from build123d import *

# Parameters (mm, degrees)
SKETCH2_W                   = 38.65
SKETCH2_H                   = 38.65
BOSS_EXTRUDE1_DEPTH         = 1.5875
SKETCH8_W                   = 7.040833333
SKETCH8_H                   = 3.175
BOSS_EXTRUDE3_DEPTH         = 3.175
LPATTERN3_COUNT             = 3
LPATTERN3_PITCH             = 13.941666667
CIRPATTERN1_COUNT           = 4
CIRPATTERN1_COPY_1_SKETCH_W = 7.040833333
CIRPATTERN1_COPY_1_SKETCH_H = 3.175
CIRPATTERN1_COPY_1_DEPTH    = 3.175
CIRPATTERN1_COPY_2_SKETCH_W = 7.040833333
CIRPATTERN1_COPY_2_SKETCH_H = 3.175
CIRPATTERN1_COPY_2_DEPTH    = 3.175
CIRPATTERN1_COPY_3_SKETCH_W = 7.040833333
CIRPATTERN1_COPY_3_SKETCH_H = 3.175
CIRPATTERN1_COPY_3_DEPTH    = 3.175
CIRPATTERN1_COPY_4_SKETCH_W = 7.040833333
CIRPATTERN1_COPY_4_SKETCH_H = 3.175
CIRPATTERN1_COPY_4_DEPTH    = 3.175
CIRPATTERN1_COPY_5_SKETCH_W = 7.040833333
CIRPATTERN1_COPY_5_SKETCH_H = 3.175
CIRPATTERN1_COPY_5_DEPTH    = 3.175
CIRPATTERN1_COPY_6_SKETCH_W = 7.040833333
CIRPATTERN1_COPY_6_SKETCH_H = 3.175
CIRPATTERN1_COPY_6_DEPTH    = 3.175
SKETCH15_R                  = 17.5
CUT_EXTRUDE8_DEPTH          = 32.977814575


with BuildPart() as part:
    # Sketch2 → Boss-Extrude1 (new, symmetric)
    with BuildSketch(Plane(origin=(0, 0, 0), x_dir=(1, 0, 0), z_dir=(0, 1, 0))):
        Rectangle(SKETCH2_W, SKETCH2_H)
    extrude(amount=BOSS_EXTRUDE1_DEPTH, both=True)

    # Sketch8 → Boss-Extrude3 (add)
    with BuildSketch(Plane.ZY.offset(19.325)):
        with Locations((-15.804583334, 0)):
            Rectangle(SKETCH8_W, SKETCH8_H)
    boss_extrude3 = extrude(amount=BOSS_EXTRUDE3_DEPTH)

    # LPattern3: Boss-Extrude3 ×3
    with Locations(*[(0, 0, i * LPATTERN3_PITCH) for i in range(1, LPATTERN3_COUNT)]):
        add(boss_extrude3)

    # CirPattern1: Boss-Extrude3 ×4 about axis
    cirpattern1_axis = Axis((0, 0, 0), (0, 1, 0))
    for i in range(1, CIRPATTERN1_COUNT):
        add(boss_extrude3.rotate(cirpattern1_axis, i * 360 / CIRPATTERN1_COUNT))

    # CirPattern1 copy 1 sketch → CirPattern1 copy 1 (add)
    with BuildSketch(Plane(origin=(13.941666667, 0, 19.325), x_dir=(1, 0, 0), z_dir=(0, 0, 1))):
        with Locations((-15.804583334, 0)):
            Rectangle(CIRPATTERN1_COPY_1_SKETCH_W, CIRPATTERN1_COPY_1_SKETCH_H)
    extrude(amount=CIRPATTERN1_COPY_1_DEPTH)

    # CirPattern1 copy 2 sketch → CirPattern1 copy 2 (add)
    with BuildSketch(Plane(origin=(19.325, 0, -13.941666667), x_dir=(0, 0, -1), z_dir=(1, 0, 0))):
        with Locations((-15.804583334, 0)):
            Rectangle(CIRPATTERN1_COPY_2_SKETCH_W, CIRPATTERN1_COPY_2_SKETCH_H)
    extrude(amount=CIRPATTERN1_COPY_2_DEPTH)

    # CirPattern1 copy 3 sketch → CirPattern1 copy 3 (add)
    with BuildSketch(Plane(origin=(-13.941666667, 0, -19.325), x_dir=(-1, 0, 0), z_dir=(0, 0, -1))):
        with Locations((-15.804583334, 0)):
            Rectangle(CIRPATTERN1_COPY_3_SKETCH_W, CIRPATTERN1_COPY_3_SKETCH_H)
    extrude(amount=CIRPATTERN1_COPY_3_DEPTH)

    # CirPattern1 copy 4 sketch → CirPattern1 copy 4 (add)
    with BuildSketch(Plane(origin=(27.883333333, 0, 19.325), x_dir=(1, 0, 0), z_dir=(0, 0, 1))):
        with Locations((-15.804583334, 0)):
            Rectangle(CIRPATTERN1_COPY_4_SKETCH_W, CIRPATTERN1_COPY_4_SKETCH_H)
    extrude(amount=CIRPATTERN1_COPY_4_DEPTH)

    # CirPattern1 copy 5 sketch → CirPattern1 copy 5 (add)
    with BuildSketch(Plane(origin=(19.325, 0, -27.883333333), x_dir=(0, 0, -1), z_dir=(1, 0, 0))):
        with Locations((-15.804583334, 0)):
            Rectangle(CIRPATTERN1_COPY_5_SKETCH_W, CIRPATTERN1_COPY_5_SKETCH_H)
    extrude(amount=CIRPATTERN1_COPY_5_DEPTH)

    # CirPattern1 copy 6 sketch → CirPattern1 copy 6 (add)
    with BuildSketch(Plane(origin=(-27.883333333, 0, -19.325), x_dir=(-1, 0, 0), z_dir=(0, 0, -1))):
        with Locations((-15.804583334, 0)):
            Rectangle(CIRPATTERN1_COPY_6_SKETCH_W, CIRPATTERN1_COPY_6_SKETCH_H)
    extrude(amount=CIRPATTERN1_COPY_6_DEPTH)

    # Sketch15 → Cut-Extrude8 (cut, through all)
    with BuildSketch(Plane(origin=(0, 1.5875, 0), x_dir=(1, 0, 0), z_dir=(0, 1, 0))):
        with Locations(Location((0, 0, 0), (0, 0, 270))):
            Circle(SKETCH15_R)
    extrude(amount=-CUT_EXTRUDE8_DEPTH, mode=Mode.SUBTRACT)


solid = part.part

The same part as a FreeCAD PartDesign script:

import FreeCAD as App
import Part
import Sketcher
from FreeCAD import Vector
Q = App.Units.Quantity

doc = App.newDocument("Part")
body = doc.addObject("PartDesign::Body", "Body")

# Sketch on XZ plane
sketch1 = body.newObject("Sketcher::SketchObject", "Sketch")
sketch1.AttachmentSupport = (doc.getObject("XZ_Plane"), [""])
sketch1.MapMode = "FlatFace"
sketch1.addGeometry([
    Part.LineSegment(Vector(-19, -19, 0), Vector(-19, 19, 0)),
    Part.LineSegment(Vector(-19, 19, 0), Vector(19, 19, 0)),
    Part.LineSegment(Vector(19, 19, 0), Vector(19, -19, 0)),
    Part.LineSegment(Vector(19, -19, 0), Vector(-19, -19, 0)),
], False)
sketch1.addConstraint([
    Sketcher.Constraint("Coincident", 0, 2, 1, 1),
    Sketcher.Constraint("Coincident", 1, 2, 2, 1),
    Sketcher.Constraint("Coincident", 2, 2, 3, 1),
    Sketcher.Constraint("Coincident", 3, 2, 0, 1),
    Sketcher.Constraint("Vertical", 0),
    Sketcher.Constraint("Horizontal", 1),
    Sketcher.Constraint("Vertical", 2),
    Sketcher.Constraint("Horizontal", 3),
    Sketcher.Constraint("Symmetric", 0, 2, 2, 2, -1, 1),
    Sketcher.Constraint("Equal", 3, 0),
    Sketcher.Constraint("DistanceX", 1, 1, 1, 2, 38.65),
])
pad1 = body.newObject("PartDesign::Pad", "Pad")
pad1.Profile = sketch1
pad1.Length = Q("0.125 in")
pad1.Midplane = True

# Sketch on YZ plane
sketch2 = body.newObject("Sketcher::SketchObject", "Sketch001")
sketch2.AttachmentSupport = (doc.getObject("YZ_Plane"), [""])
sketch2.MapMode = "FlatFace"
sketch2.AttachmentOffset = App.Placement(Vector(0, 0, -19.325), App.Rotation())
sketch2.addGeometry([
    Part.LineSegment(Vector(1.6, -19.3, 0), Vector(-1.6, -19.3, 0)),
    Part.LineSegment(Vector(-1.6, -19.3, 0), Vector(-1.6, -12.3, 0)),
    Part.LineSegment(Vector(-1.6, -12.3, 0), Vector(1.6, -12.3, 0)),
    Part.LineSegment(Vector(1.6, -12.3, 0), Vector(1.6, -19.3, 0)),
], False)
sketch2.addConstraint([
    Sketcher.Constraint("Coincident", 0, 2, 1, 1),
    Sketcher.Constraint("Coincident", 1, 2, 2, 1),
    Sketcher.Constraint("Coincident", 2, 2, 3, 1),
    Sketcher.Constraint("Coincident", 3, 2, 0, 1),
    Sketcher.Constraint("Horizontal", 0),
    Sketcher.Constraint("Vertical", 1),
    Sketcher.Constraint("Horizontal", 2),
    Sketcher.Constraint("Vertical", 3),
    Sketcher.Constraint("DistanceX", 0, 2, 0, 1, Q("0.125 in")),
    Sketcher.Constraint("DistanceX", 0, 2, -1, 1, Q("0.0625 in")),
    Sketcher.Constraint("DistanceY", 0, 2, -1, 1, 19.325),
    Sketcher.Constraint("DistanceY", 1, 1, 1, 2, 7.040833),
])
pad2 = body.newObject("PartDesign::Pad", "Pad001")
pad2.Profile = sketch2
pad2.Length = Q("0.125 in")
pad2.Reversed = True
doc.recompute()

linearpattern = body.newObject("PartDesign::LinearPattern", "LinearPattern")
linearpattern.Originals = [pad2]
linearpattern.Direction = (doc.getObject("Z_Axis"), [""])
linearpattern.Mode = "offset"
linearpattern.Offset = 13.941667
linearpattern.Occurrences = 3
body.Tip = linearpattern
doc.recompute()

polarpattern = body.newObject("PartDesign::PolarPattern", "PolarPattern")
polarpattern.Originals = [pad2]
polarpattern.Axis = (doc.getObject("Y_Axis"), [""])
polarpattern.Angle = 360
polarpattern.Occurrences = 4
body.Tip = polarpattern

# Sketch on XY plane
sketch3 = body.newObject("Sketcher::SketchObject", "Sketch002")
sketch3.AttachmentSupport = (doc.getObject("XY_Plane"), [""])
sketch3.MapMode = "FlatFace"
sketch3.AttachmentOffset = App.Placement(Vector(0, 0, 19.325), App.Rotation())
sketch3.addGeometry([
    Part.LineSegment(Vector(-5.4, 1.6, 0), Vector(-5.4, -1.6, 0)),
    Part.LineSegment(Vector(-5.4, -1.6, 0), Vector(1.7, -1.6, 0)),
    Part.LineSegment(Vector(1.7, -1.6, 0), Vector(1.7, 1.6, 0)),
    Part.LineSegment(Vector(1.7, 1.6, 0), Vector(-5.4, 1.6, 0)),
], False)
sketch3.addConstraint([
    Sketcher.Constraint("Coincident", 0, 2, 1, 1),
    Sketcher.Constraint("Coincident", 1, 2, 2, 1),
    Sketcher.Constraint("Coincident", 2, 2, 3, 1),
    Sketcher.Constraint("Coincident", 3, 2, 0, 1),
    Sketcher.Constraint("Vertical", 0),
    Sketcher.Constraint("Horizontal", 1),
    Sketcher.Constraint("Vertical", 2),
    Sketcher.Constraint("Horizontal", 3),
    Sketcher.Constraint("DistanceY", 0, 2, 0, 1, Q("0.125 in")),
    Sketcher.Constraint("DistanceY", 0, 2, -1, 1, Q("0.0625 in")),
    Sketcher.Constraint("DistanceX", -1, 1, 1, 2, 1.6575),
    Sketcher.Constraint("DistanceX", 1, 1, 1, 2, 7.040833),
])
pad3 = body.newObject("PartDesign::Pad", "Pad002")
pad3.Profile = sketch3
pad3.Length = Q("0.125 in")

# Sketch on YZ plane
sketch4 = body.newObject("Sketcher::SketchObject", "Sketch003")
sketch4.AttachmentSupport = (doc.getObject("YZ_Plane"), [""])
sketch4.MapMode = "FlatFace"
sketch4.AttachmentOffset = App.Placement(Vector(0, 0, 19.325), App.Rotation())
sketch4.addGeometry([
    Part.LineSegment(Vector(1.6, 5.4, 0), Vector(-1.6, 5.4, 0)),
    Part.LineSegment(Vector(-1.6, 5.4, 0), Vector(-1.6, -1.7, 0)),
    Part.LineSegment(Vector(-1.6, -1.7, 0), Vector(1.6, -1.7, 0)),
    Part.LineSegment(Vector(1.6, -1.7, 0), Vector(1.6, 5.4, 0)),
], False)
sketch4.addConstraint([
    Sketcher.Constraint("Coincident", 0, 2, 1, 1),
    Sketcher.Constraint("Coincident", 1, 2, 2, 1),
    Sketcher.Constraint("Coincident", 2, 2, 3, 1),
    Sketcher.Constraint("Coincident", 3, 2, 0, 1),
    Sketcher.Constraint("Horizontal", 0),
    Sketcher.Constraint("Vertical", 1),
    Sketcher.Constraint("Horizontal", 2),
    Sketcher.Constraint("Vertical", 3),
    Sketcher.Constraint("DistanceX", 0, 2, 0, 1, Q("0.125 in")),
    Sketcher.Constraint("DistanceX", 0, 2, -1, 1, Q("0.0625 in")),
    Sketcher.Constraint("DistanceY", 1, 2, -1, 1, 1.6575),
    Sketcher.Constraint("DistanceY", 1, 2, 1, 1, 7.040833),
])
pad4 = body.newObject("PartDesign::Pad", "Pad003")
pad4.Profile = sketch4
pad4.Length = Q("0.125 in")

# Sketch on XY plane
sketch5 = body.newObject("Sketcher::SketchObject", "Sketch004")
sketch5.AttachmentSupport = (doc.getObject("XY_Plane"), [""])
sketch5.MapMode = "FlatFace"
sketch5.AttachmentOffset = App.Placement(Vector(0, 0, -19.325), App.Rotation())
sketch5.addGeometry([
    Part.LineSegment(Vector(5.4, 1.6, 0), Vector(5.4, -1.6, 0)),
    Part.LineSegment(Vector(5.4, -1.6, 0), Vector(-1.7, -1.6, 0)),
    Part.LineSegment(Vector(-1.7, -1.6, 0), Vector(-1.7, 1.6, 0)),
    Part.LineSegment(Vector(-1.7, 1.6, 0), Vector(5.4, 1.6, 0)),
], False)
sketch5.addConstraint([
    Sketcher.Constraint("Coincident", 0, 2, 1, 1),
    Sketcher.Constraint("Coincident", 1, 2, 2, 1),
    Sketcher.Constraint("Coincident", 2, 2, 3, 1),
    Sketcher.Constraint("Coincident", 3, 2, 0, 1),
    Sketcher.Constraint("Vertical", 0),
    Sketcher.Constraint("Horizontal", 1),
    Sketcher.Constraint("Vertical", 2),
    Sketcher.Constraint("Horizontal", 3),
    Sketcher.Constraint("DistanceY", 0, 2, 0, 1, Q("0.125 in")),
    Sketcher.Constraint("DistanceY", 0, 2, -1, 1, Q("0.0625 in")),
    Sketcher.Constraint("DistanceX", 1, 2, -1, 1, 1.6575),
    Sketcher.Constraint("DistanceX", 1, 2, 1, 1, 7.040833),
])
pad5 = body.newObject("PartDesign::Pad", "Pad004")
pad5.Profile = sketch5
pad5.Length = Q("0.125 in")
pad5.Reversed = True

# Sketch on XY plane
sketch6 = body.newObject("Sketcher::SketchObject", "Sketch005")
sketch6.AttachmentSupport = (doc.getObject("XY_Plane"), [""])
sketch6.MapMode = "FlatFace"
sketch6.AttachmentOffset = App.Placement(Vector(0, 0, 19.325), App.Rotation())
sketch6.addGeometry([
    Part.LineSegment(Vector(8.6, 1.6, 0), Vector(8.6, -1.6, 0)),
    Part.LineSegment(Vector(8.6, -1.6, 0), Vector(15.6, -1.6, 0)),
    Part.LineSegment(Vector(15.6, -1.6, 0), Vector(15.6, 1.6, 0)),
    Part.LineSegment(Vector(15.6, 1.6, 0), Vector(8.6, 1.6, 0)),
], False)
sketch6.addConstraint([
    Sketcher.Constraint("Coincident", 0, 2, 1, 1),
    Sketcher.Constraint("Coincident", 1, 2, 2, 1),
    Sketcher.Constraint("Coincident", 2, 2, 3, 1),
    Sketcher.Constraint("Coincident", 3, 2, 0, 1),
    Sketcher.Constraint("Vertical", 0),
    Sketcher.Constraint("Horizontal", 1),
    Sketcher.Constraint("Vertical", 2),
    Sketcher.Constraint("Horizontal", 3),
    Sketcher.Constraint("DistanceY", 0, 2, 0, 1, Q("0.125 in")),
    Sketcher.Constraint("DistanceY", 0, 2, -1, 1, Q("0.0625 in")),
    Sketcher.Constraint("DistanceX", 1, 1, 1, 2, 7.040833),
    Sketcher.Constraint("DistanceX", -1, 1, 0, 2, 8.558333),
])
pad6 = body.newObject("PartDesign::Pad", "Pad005")
pad6.Profile = sketch6
pad6.Length = Q("0.125 in")

# Sketch on YZ plane
sketch7 = body.newObject("Sketcher::SketchObject", "Sketch006")
sketch7.AttachmentSupport = (doc.getObject("YZ_Plane"), [""])
sketch7.MapMode = "FlatFace"
sketch7.AttachmentOffset = App.Placement(Vector(0, 0, 19.325), App.Rotation())
sketch7.addGeometry([
    Part.LineSegment(Vector(1.6, -8.6, 0), Vector(-1.6, -8.6, 0)),
    Part.LineSegment(Vector(-1.6, -8.6, 0), Vector(-1.6, -15.6, 0)),
    Part.LineSegment(Vector(-1.6, -15.6, 0), Vector(1.6, -15.6, 0)),
    Part.LineSegment(Vector(1.6, -15.6, 0), Vector(1.6, -8.6, 0)),
], False)
sketch7.addConstraint([
    Sketcher.Constraint("Coincident", 0, 2, 1, 1),
    Sketcher.Constraint("Coincident", 1, 2, 2, 1),
    Sketcher.Constraint("Coincident", 2, 2, 3, 1),
    Sketcher.Constraint("Coincident", 3, 2, 0, 1),
    Sketcher.Constraint("Horizontal", 0),
    Sketcher.Constraint("Vertical", 1),
    Sketcher.Constraint("Horizontal", 2),
    Sketcher.Constraint("Vertical", 3),
    Sketcher.Constraint("DistanceX", 0, 2, 0, 1, Q("0.125 in")),
    Sketcher.Constraint("DistanceX", 0, 2, -1, 1, Q("0.0625 in")),
    Sketcher.Constraint("DistanceY", 1, 2, 1, 1, 7.040833),
    Sketcher.Constraint("DistanceY", 0, 2, -1, 1, 8.558333),
])
pad7 = body.newObject("PartDesign::Pad", "Pad006")
pad7.Profile = sketch7
pad7.Length = Q("0.125 in")

# Sketch on XY plane
sketch8 = body.newObject("Sketcher::SketchObject", "Sketch007")
sketch8.AttachmentSupport = (doc.getObject("XY_Plane"), [""])
sketch8.MapMode = "FlatFace"
sketch8.AttachmentOffset = App.Placement(Vector(0, 0, -19.325), App.Rotation())
sketch8.addGeometry([
    Part.LineSegment(Vector(-8.6, 1.6, 0), Vector(-8.6, -1.6, 0)),
    Part.LineSegment(Vector(-8.6, -1.6, 0), Vector(-15.6, -1.6, 0)),
    Part.LineSegment(Vector(-15.6, -1.6, 0), Vector(-15.6, 1.6, 0)),
    Part.LineSegment(Vector(-15.6, 1.6, 0), Vector(-8.6, 1.6, 0)),
], False)
sketch8.addConstraint([
    Sketcher.Constraint("Coincident", 0, 2, 1, 1),
    Sketcher.Constraint("Coincident", 1, 2, 2, 1),
    Sketcher.Constraint("Coincident", 2, 2, 3, 1),
    Sketcher.Constraint("Coincident", 3, 2, 0, 1),
    Sketcher.Constraint("Vertical", 0),
    Sketcher.Constraint("Horizontal", 1),
    Sketcher.Constraint("Vertical", 2),
    Sketcher.Constraint("Horizontal", 3),
    Sketcher.Constraint("DistanceY", 0, 2, 0, 1, Q("0.125 in")),
    Sketcher.Constraint("DistanceY", 0, 2, -1, 1, Q("0.0625 in")),
    Sketcher.Constraint("DistanceX", 1, 2, 1, 1, 7.040833),
    Sketcher.Constraint("DistanceX", 0, 2, -1, 1, 8.558333),
])
pad8 = body.newObject("PartDesign::Pad", "Pad007")
pad8.Profile = sketch8
pad8.Length = Q("0.125 in")
pad8.Reversed = True

# Sketch on XZ plane
sketch9 = body.newObject("Sketcher::SketchObject", "Sketch008")
sketch9.AttachmentSupport = (doc.getObject("XZ_Plane"), [""])
sketch9.MapMode = "FlatFace"
sketch9.AttachmentOffset = App.Placement(Vector(0, 0, -0.0625 * 25.4), App.Rotation())
sketch9.addGeometry(Part.Circle(Vector(0, 0, 0), Vector(0, 0, 1), 18), False)
sketch9.addConstraint([
    Sketcher.Constraint("Coincident", 0, 3, -1, 1),
    Sketcher.Constraint("Diameter", 0, 35.0),
])
pocket1 = body.newObject("PartDesign::Pocket", "Pocket")
pocket1.Profile = sketch9
pocket1.Type = "ThroughAll"
pocket1.Reversed = True

doc.recompute()
